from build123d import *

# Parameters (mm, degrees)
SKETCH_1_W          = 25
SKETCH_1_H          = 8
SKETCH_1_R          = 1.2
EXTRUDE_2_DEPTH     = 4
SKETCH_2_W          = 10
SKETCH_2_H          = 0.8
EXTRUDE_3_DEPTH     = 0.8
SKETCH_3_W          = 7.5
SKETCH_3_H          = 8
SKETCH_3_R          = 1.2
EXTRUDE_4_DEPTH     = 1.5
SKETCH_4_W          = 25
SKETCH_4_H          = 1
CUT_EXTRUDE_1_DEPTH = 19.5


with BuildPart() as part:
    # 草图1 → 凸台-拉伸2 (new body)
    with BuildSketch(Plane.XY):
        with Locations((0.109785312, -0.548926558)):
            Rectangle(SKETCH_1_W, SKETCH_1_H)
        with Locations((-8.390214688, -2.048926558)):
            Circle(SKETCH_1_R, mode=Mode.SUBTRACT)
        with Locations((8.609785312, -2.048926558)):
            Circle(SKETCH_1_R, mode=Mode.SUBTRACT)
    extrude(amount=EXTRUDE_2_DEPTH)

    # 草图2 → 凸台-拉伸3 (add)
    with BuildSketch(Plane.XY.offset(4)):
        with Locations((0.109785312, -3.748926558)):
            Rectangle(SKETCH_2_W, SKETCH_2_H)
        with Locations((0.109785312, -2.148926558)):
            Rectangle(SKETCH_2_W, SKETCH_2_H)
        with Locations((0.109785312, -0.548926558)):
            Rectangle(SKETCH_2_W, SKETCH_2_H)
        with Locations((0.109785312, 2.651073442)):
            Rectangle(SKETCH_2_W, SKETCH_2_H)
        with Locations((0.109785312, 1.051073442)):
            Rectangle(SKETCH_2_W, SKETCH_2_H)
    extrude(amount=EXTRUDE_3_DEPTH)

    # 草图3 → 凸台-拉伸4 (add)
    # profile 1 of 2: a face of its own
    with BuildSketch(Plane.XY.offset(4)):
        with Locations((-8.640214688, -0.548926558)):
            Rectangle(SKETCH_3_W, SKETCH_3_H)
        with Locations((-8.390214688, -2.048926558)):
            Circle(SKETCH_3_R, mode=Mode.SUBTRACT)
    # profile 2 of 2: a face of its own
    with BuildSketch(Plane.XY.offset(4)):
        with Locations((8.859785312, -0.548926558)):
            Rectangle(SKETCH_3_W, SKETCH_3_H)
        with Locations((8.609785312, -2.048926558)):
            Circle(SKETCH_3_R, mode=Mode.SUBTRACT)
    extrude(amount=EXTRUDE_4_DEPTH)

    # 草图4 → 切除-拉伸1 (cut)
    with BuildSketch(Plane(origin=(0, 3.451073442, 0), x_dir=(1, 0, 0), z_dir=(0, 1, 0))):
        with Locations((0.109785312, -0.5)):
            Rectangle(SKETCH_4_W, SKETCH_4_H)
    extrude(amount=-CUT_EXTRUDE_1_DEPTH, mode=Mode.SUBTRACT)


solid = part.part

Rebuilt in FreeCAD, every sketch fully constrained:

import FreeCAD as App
import Part
import Sketcher
from FreeCAD import Vector
Q = App.Units.Quantity


def add_polygon(sketch, points):
    """Adds a closed chain of lines whose ends are joined by coincident constraints."""
    first, n = sketch.GeometryCount, len(points)
    for a, b in zip(points, points[1:] + points[:1]):
        sketch.addGeometry(Part.LineSegment(App.Vector(*a, 0), App.Vector(*b, 0)), False)
    for i in range(n):
        sketch.addConstraint(Sketcher.Constraint("Coincident", first + i, 2, first + (i + 1) % n, 1))

doc = App.newDocument("Part")
body = doc.addObject("PartDesign::Body", "Body")

# Sketch on XY plane
sketch1 = doc.addObject("Sketcher::SketchObject", "Sketch")
body.addObject(sketch1)
sketch1.AttachmentSupport = (doc.XY_Plane, [""])
sketch1.MapMode = "FlatFace"
add_polygon(sketch1, [(-12.4, 3.5), (-12.4, -4.5), (12.6, -4.5), (12.6, 3.5)])  # lines 0-3
sketch1.addGeometry(Part.Circle(Vector(-8.4, -2, 0), Vector(0, 0, 1), 1.2), False)  # 4
sketch1.addGeometry(Part.Circle(Vector(8.6, -2, 0), Vector(0, 0, 1), 1.2), False)  # 5
sketch1.addConstraint([
    Sketcher.Constraint("Vertical", 0),
    Sketcher.Constraint("Horizontal", 1),
    Sketcher.Constraint("Vertical", 2),
    Sketcher.Constraint("Horizontal", 3),
    Sketcher.Constraint("Equal", 4, 5),
    Sketcher.Constraint("Horizontal", 4, 3, 5, 3),
    Sketcher.Constraint("Diameter", 4, Q("2.4 mm")),
    Sketcher.Constraint("DistanceX", 1, 1, 1, 2, Q("25 mm")),
    Sketcher.Constraint("DistanceY", 0, 2, 0, 1, Q("8 mm")),
    Sketcher.Constraint("DistanceX", 4, 3, 5, 3, Q("17 mm")),
    Sketcher.Constraint("DistanceX", 0, 2, 4, 3, Q("4 mm")),
    Sketcher.Constraint("DistanceY", 0, 2, 4, 3, Q("2.5 mm")),
    Sketcher.Constraint("DistanceX", 4, 3, -1, 1, Q("8.390215 mm")),
    Sketcher.Constraint("DistanceY", 4, 3, -1, 1, Q("2.048927 mm")),
])
pad1 = doc.addObject("PartDesign::Pad", "Pad")
body.addObject(pad1)
pad1.Profile = sketch1
pad1.Length = 4

# Sketch on XY plane
sketch2 = doc.addObject("Sketcher::SketchObject", "Sketch001")
body.addObject(sketch2)
sketch2.AttachmentSupport = (doc.XY_Plane, [""])
sketch2.MapMode = "FlatFace"
sketch2.AttachmentOffset = App.Placement(Vector(0, 0, 4), App.Rotation())
add_polygon(sketch2, [(-4.9, -3.3), (-4.9, -4.1), (5.1, -4.1), (5.1, -3.3)])  # lines 0-3
add_polygon(sketch2, [(-4.9, -1.7), (-4.9, -2.5), (5.1, -2.5), (5.1, -1.7)])  # lines 4-7
add_polygon(sketch2, [(-4.9, -0.1), (-4.9, -0.9), (5.1, -0.9), (5.1, -0.1)])  # lines 8-11
add_polygon(sketch2, [(-4.9, 3.1), (-4.9, 2.3), (5.1, 2.3), (5.1, 3.1)])  # lines 12-15
add_polygon(sketch2, [(-4.9, 1.5), (-4.9, 0.7), (5.1, 0.7), (5.1, 1.5)])  # lines 16-19
sketch2.addConstraint([
    Sketcher.Constraint("Vertical", 0),
    Sketcher.Constraint("Horizontal", 1),
    Sketcher.Constraint("Vertical", 2),
    Sketcher.Constraint("Horizontal", 3),
    Sketcher.Constraint("Vertical", 4),
    Sketcher.Constraint("Horizontal", 5),
    Sketcher.Constraint("Vertical", 6),
    Sketcher.Constraint("Horizontal", 7),
    Sketcher.Constraint("Vertical", 8),
    Sketcher.Constraint("Horizontal", 9),
    Sketcher.Constraint("Vertical", 10),
    Sketcher.Constraint("Horizontal", 11),
    Sketcher.Constraint("Vertical", 12),
    Sketcher.Constraint("Horizontal", 13),
    Sketcher.Constraint("Vertical", 14),
    Sketcher.Constraint("Horizontal", 15),
    Sketcher.Constraint("Vertical", 16),
    Sketcher.Constraint("Horizontal", 17),
    Sketcher.Constraint("Vertical", 18),
    Sketcher.Constraint("Horizontal", 19),
    Sketcher.Constraint("Vertical", 3, 2, 4, 2),
    Sketcher.Constraint("Vertical", 2, 2, 5, 2),
    Sketcher.Constraint("Vertical", 7, 2, 8, 2),
    Sketcher.Constraint("Vertical", 6, 2, 9, 2),
    Sketcher.Constraint("Vertical", 11, 2, 12, 2),
    Sketcher.Constraint("Vertical", 10, 2, 13, 2),
    Sketcher.Constraint("Vertical", 15, 2, 16, 2),
    Sketcher.Constraint("Vertical", 14, 2, 17, 2),
    Sketcher.Constraint("Equal", 2, 4),
    Sketcher.Constraint("Equal", 6, 8),
    Sketcher.Constraint("Equal", 10, 12),
    Sketcher.Constraint("Equal", 14, 16),
    Sketcher.Constraint("DistanceX", 1, 1, 1, 2, Q("10 mm")),
    Sketcher.Constraint("DistanceY", 0, 2, 0, 1, Q("0.8 mm")),
    Sketcher.Constraint("DistanceY", 1, 2, 10, 2, Q("4 mm")),
    Sketcher.Constraint("DistanceY", 7, 2, 12, 2, Q("4 mm")),
    Sketcher.Constraint("DistanceY", 9, 2, 14, 2, Q("4 mm")),
    Sketcher.Constraint("DistanceY", 11, 2, 16, 2, Q("0.8 mm")),
    Sketcher.Constraint("DistanceX", 0, 2, -1, 1, Q("4.890215 mm")),
    Sketcher.Constraint("DistanceY", 0, 2, -1, 1, Q("4.148927 mm")),
])
pad2 = doc.addObject("PartDesign::Pad", "Pad001")
body.addObject(pad2)
pad2.Profile = sketch2
pad2.Length = 0.8

# Sketch on XY plane
sketch3 = doc.addObject("Sketcher::SketchObject", "Sketch002")
body.addObject(sketch3)
sketch3.AttachmentSupport = (doc.XY_Plane, [""])
sketch3.MapMode = "FlatFace"
sketch3.AttachmentOffset = App.Placement(Vector(0, 0, 4), App.Rotation())
add_polygon(sketch3, [(-12.4, 3.5), (-12.4, -4.5), (-4.9, -4.5), (-4.9, 3.5)])  # lines 0-3
sketch3.addGeometry(Part.Circle(Vector(-8.4, -2, 0), Vector(0, 0, 1), 1.2), False)  # 4
add_polygon(sketch3, [(5.1, 3.5), (5.1, -4.5), (12.6, -4.5), (12.6, 3.5)])  # lines 5-8
sketch3.addGeometry(Part.Circle(Vector(8.6, -2, 0), Vector(0, 0, 1), 1.2), False)  # 9
sketch3.addConstraint([
    Sketcher.Constraint("Vertical", 0),
    Sketcher.Constraint("Horizontal", 1),
    Sketcher.Constraint("Vertical", 2),
    Sketcher.Constraint("Horizontal", 3),
    Sketcher.Constraint("Vertical", 5),
    Sketcher.Constraint("Horizontal", 6),
    Sketcher.Constraint("Vertical", 7),
    Sketcher.Constraint("Horizontal", 8),
    Sketcher.Constraint("Equal", 4, 9),
    Sketcher.Constraint("Horizontal", 4, 3, 9, 3),
    Sketcher.Constraint("Horizontal", 1, 2, 5, 2),
    Sketcher.Constraint("Horizontal", 3, 2, 7, 2),
    Sketcher.Constraint("Equal", 3, 6),
    Sketcher.Constraint("Diameter", 4, Q("2.4 mm")),
    Sketcher.Constraint("DistanceY", 0, 2, 0, 1, Q("8 mm")),
    Sketcher.Constraint("DistanceX", 1, 1, 1, 2, Q("7.5 mm")),
    Sketcher.Constraint("DistanceX", 4, 3, 9, 3, Q("17 mm")),
    Sketcher.Constraint("DistanceX", 0, 2, 4, 3, Q("4 mm")),
    Sketcher.Constraint("DistanceX", 1, 2, 5, 2, Q("10 mm")),
    Sketcher.Constraint("DistanceY", 0, 2, 4, 3, Q("2.5 mm")),
    Sketcher.Constraint("DistanceX", 4, 3, -1, 1, Q("8.390215 mm")),
    Sketcher.Constraint("DistanceY", 4, 3, -1, 1, Q("2.048927 mm")),
])
pad3 = doc.addObject("PartDesign::Pad", "Pad002")
body.addObject(pad3)
pad3.Profile = sketch3
pad3.Length = 1.5

# Sketch on XZ plane
sketch4 = doc.addObject("Sketcher::SketchObject", "Sketch003")
body.addObject(sketch4)
sketch4.AttachmentSupport = (doc.XZ_Plane, [""])
sketch4.MapMode = "FlatFace"
sketch4.AttachmentOffset = App.Placement(Vector(0, 0, -3.451073), App.Rotation())
add_polygon(sketch4, [(-12.4, 0), (-12.4, 1), (12.6, 1), (12.6, 0)])  # lines 0-3
sketch4.addConstraint([
    Sketcher.Constraint("Vertical", 0),
    Sketcher.Constraint("Horizontal", 1),
    Sketcher.Constraint("Vertical", 2),
    Sketcher.Constraint("Horizontal", 3),
    Sketcher.Constraint("PointOnObject", 2, 2, -1),
    Sketcher.Constraint("DistanceX", 1, 1, 1, 2, Q("25 mm")),
    Sketcher.Constraint("DistanceY", 0, 1, 0, 2, Q("1 mm")),
    Sketcher.Constraint("DistanceX", 0, 2, -1, 1, Q("12.390215 mm")),
])
pocket1 = doc.addObject("PartDesign::Pocket", "Pocket")
body.addObject(pocket1)
pocket1.Profile = sketch4
pocket1.Length = 19.5
pocket1.Reversed = True

doc.recompute()
